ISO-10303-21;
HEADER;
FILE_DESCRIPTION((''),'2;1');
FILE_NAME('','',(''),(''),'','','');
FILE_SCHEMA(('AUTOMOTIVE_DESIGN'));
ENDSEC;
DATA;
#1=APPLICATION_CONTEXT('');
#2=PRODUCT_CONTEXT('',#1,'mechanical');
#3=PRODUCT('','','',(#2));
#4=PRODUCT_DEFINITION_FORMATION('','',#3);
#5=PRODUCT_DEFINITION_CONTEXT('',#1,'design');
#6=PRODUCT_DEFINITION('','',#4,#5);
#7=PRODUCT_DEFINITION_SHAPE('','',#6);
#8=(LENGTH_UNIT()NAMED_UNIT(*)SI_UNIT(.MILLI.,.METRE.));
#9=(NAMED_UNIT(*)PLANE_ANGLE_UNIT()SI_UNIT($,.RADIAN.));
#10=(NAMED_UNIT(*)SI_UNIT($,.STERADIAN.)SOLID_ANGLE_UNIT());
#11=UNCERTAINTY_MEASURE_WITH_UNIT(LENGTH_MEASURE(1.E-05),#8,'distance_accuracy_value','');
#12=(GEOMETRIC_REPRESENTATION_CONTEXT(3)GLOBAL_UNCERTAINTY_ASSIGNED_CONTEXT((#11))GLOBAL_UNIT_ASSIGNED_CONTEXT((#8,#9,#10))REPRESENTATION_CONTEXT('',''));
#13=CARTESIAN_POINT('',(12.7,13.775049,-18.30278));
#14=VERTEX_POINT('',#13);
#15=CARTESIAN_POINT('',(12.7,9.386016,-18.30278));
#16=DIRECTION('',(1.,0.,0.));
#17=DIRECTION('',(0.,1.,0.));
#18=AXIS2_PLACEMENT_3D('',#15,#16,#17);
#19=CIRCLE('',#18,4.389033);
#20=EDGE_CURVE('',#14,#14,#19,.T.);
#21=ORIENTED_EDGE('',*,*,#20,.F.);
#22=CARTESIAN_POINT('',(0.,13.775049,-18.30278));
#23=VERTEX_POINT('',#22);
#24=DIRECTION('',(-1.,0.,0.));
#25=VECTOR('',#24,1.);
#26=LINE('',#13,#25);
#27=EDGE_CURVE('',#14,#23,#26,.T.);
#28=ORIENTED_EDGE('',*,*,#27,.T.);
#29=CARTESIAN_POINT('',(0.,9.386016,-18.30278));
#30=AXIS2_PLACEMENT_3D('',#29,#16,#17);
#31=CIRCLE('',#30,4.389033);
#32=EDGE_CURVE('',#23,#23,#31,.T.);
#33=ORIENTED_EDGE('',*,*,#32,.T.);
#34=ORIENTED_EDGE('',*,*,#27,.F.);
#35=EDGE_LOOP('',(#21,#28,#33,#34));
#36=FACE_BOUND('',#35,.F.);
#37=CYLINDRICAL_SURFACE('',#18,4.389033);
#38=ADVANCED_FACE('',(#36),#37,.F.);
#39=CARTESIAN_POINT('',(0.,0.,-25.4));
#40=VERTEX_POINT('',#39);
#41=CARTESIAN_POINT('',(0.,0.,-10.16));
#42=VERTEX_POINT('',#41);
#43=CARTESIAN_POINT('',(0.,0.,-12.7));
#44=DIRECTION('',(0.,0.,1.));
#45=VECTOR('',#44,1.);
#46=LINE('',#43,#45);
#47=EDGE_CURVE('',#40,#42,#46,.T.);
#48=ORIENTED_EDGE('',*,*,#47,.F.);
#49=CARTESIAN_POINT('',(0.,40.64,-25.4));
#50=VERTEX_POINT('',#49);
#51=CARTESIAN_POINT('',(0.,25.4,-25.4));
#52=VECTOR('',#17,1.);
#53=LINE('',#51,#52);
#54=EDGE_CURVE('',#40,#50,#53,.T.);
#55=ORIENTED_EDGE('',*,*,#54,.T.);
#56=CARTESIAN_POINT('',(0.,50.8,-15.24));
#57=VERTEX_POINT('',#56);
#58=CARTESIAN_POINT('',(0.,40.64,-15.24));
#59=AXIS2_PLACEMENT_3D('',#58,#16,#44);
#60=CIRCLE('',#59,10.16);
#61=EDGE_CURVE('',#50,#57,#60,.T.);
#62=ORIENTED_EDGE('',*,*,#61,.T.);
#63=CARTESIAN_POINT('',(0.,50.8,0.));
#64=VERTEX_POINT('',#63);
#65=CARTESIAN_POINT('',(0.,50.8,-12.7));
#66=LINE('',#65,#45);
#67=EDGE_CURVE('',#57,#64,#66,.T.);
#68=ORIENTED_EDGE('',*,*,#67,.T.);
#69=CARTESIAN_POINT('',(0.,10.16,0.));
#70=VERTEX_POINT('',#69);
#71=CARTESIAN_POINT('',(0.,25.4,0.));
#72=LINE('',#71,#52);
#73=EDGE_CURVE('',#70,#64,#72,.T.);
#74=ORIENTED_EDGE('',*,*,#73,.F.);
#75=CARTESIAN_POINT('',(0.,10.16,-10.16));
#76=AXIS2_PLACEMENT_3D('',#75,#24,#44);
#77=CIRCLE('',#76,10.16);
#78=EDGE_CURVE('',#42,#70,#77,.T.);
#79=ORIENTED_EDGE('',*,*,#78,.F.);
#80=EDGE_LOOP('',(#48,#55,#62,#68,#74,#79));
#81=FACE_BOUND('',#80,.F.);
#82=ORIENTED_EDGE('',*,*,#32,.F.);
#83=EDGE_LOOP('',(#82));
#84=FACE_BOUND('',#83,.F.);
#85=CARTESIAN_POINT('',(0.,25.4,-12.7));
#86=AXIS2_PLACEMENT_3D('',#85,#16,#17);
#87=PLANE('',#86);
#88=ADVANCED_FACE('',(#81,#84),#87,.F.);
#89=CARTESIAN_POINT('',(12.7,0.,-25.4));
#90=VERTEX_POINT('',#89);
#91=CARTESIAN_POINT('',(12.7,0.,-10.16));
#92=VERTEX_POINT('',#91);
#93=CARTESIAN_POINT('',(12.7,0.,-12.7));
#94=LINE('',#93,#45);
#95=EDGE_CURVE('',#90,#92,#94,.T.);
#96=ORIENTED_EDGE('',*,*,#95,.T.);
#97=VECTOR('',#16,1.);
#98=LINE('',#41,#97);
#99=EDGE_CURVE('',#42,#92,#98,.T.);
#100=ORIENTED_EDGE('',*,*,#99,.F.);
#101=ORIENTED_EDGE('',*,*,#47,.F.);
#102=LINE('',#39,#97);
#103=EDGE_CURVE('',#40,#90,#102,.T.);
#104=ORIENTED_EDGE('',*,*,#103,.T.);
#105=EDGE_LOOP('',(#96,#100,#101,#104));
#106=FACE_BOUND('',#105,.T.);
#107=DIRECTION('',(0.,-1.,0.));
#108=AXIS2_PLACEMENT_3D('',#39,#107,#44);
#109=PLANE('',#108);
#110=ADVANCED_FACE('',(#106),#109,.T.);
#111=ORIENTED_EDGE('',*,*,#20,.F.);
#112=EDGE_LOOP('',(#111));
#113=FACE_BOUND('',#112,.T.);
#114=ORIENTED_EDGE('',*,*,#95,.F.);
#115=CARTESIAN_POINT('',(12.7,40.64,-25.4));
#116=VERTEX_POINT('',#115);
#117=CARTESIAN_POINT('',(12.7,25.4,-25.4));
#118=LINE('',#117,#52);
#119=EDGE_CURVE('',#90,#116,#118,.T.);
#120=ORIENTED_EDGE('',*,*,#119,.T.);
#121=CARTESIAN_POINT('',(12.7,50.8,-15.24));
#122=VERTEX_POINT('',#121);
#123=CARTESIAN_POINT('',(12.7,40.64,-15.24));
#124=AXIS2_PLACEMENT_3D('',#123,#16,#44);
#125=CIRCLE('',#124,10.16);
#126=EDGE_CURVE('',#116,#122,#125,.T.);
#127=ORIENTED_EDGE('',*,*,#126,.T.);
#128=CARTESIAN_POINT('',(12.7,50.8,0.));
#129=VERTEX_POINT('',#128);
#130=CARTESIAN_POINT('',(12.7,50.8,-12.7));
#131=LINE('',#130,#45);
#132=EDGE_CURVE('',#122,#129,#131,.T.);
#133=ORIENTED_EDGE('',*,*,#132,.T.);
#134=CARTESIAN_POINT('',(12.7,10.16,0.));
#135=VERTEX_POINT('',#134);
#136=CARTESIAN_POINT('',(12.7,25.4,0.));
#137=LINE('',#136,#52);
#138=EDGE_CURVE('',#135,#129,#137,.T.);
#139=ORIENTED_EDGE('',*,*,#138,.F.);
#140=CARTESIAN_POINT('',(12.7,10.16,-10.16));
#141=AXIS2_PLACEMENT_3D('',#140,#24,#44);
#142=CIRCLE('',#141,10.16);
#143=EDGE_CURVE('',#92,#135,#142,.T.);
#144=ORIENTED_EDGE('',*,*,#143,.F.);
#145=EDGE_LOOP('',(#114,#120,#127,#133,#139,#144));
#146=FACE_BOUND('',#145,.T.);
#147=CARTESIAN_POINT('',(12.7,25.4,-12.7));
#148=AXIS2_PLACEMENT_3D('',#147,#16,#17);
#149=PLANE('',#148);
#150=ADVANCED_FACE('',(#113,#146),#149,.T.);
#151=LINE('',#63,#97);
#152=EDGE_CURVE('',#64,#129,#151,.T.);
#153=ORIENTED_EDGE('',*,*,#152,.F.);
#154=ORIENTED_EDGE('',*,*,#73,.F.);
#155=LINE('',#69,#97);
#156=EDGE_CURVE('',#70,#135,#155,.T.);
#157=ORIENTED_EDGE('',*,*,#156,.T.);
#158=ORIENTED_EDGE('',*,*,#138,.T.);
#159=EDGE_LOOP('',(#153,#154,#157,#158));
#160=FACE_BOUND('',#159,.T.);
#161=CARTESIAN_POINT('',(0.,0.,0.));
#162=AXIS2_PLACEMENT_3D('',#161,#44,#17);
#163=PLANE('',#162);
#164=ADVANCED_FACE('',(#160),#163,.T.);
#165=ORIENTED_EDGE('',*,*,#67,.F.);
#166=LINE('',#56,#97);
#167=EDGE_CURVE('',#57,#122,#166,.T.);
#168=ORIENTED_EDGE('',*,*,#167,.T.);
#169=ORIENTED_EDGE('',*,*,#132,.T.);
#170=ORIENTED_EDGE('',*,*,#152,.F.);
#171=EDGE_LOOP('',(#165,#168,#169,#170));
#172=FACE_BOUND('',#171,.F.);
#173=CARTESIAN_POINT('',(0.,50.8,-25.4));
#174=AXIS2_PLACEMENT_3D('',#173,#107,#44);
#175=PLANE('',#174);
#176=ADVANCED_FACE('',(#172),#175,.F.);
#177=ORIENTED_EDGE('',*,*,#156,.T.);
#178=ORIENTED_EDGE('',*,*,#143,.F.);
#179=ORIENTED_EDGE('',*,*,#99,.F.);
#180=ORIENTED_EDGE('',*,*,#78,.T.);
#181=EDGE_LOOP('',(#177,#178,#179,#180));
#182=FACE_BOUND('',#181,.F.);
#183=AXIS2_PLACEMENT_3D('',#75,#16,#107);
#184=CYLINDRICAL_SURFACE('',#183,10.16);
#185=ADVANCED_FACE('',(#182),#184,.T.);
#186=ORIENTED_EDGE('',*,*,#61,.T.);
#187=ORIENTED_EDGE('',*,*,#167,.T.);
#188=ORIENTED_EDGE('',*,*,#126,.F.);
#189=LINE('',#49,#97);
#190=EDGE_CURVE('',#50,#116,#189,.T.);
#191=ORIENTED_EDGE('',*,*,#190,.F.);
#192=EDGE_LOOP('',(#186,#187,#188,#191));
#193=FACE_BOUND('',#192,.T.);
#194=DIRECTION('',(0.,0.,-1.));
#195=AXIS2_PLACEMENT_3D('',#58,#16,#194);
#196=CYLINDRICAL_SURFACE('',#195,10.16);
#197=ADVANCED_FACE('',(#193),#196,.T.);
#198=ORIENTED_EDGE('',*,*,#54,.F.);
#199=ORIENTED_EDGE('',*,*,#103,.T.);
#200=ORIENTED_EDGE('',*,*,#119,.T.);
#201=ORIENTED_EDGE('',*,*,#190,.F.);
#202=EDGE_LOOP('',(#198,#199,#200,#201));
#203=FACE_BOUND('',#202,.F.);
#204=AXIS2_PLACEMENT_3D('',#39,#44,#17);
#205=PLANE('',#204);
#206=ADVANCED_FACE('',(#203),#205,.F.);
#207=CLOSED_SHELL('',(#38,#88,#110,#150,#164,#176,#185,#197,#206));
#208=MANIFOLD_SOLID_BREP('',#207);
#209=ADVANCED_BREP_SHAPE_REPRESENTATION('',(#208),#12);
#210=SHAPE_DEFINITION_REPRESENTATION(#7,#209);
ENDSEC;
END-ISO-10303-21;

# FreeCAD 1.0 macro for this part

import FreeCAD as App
import Part
import Sketcher

V = App.Vector
Q = App.Units.Quantity


def edges_at(feature, points):
    """Names of the edges that pass closest to the given points."""
    edges = feature.Shape.Edges
    near = lambda p: min(range(len(edges)), key=lambda i: edges[i].distToShape(Part.Vertex(*p))[0])
    return sorted({f"Edge{near(p) + 1}" for p in points})


def add_polygon(sketch, points):
    """Adds a closed chain of lines whose ends are joined by coincident constraints."""
    first, n = sketch.GeometryCount, len(points)
    for a, b in zip(points, points[1:] + points[:1]):
        sketch.addGeometry(Part.LineSegment(App.Vector(*a, 0), App.Vector(*b, 0)), False)
    for i in range(n):
        sketch.addConstraint(Sketcher.Constraint("Coincident", first + i, 2, first + (i + 1) % n, 1))

doc = App.newDocument("Part")
body = doc.addObject("PartDesign::Body", "Body")

# Sketch on YZ plane
sketch1 = body.newObject("Sketcher::SketchObject", "Sketch")
sketch1.AttachmentSupport = (doc.getObject("YZ_Plane"), [""])
sketch1.MapMode = "FlatFace"
add_polygon(sketch1, [(0, 0), (0, -25), (51, -25), (51, 0)])  # lines 0-3
sketch1.addConstraint([
    Sketcher.Constraint("Vertical", 0),
    Sketcher.Constraint("Horizontal", 1),
    Sketcher.Constraint("Vertical", 2),
    Sketcher.Constraint("Horizontal", 3),
    Sketcher.Constraint("Coincident", 3, 2, -1, 1),
    Sketcher.Constraint("DistanceX", 1, 1, 1, 2, Q("2 in")),
    Sketcher.Constraint("DistanceY", 0, 2, 0, 1, Q("1 in")),
])
pad1 = body.newObject("PartDesign::Pad", "Pad")
pad1.Profile = sketch1
pad1.Length = Q("0.5 in")
doc.recompute()

fillet = body.newObject("PartDesign::Fillet", "Fillet")
fillet.Base = (pad1, edges_at(pad1, [(6.35, 0, 0), (6.35, 50.8, -25.4)]))
fillet.Radius = Q("0.4 in")

# Sketch on YZ plane
sketch2 = body.newObject("Sketcher::SketchObject", "Sketch001")
sketch2.AttachmentSupport = (doc.getObject("YZ_Plane"), [""])
sketch2.MapMode = "FlatFace"
sketch2.AttachmentOffset = App.Placement(V(0, 0, 0.5 * 25.4), App.Rotation())
sketch2.addGeometry(Part.Circle(V(9.4, -18.3, 0), V(0, 0, 1), 4.4), False)
sketch2.addConstraint([
    Sketcher.Constraint("Diameter", 0, Q("8.778066 mm")),
    Sketcher.Constraint("DistanceY", 0, 3, -1, 1, Q("18.30278 mm")),
    Sketcher.Constraint("DistanceX", -1, 1, 0, 3, Q("9.386016 mm")),
])
pocket1 = body.newObject("PartDesign::Pocket", "Pocket")
pocket1.Profile = sketch2
pocket1.Length = Q("1 in")

doc.recompute()
